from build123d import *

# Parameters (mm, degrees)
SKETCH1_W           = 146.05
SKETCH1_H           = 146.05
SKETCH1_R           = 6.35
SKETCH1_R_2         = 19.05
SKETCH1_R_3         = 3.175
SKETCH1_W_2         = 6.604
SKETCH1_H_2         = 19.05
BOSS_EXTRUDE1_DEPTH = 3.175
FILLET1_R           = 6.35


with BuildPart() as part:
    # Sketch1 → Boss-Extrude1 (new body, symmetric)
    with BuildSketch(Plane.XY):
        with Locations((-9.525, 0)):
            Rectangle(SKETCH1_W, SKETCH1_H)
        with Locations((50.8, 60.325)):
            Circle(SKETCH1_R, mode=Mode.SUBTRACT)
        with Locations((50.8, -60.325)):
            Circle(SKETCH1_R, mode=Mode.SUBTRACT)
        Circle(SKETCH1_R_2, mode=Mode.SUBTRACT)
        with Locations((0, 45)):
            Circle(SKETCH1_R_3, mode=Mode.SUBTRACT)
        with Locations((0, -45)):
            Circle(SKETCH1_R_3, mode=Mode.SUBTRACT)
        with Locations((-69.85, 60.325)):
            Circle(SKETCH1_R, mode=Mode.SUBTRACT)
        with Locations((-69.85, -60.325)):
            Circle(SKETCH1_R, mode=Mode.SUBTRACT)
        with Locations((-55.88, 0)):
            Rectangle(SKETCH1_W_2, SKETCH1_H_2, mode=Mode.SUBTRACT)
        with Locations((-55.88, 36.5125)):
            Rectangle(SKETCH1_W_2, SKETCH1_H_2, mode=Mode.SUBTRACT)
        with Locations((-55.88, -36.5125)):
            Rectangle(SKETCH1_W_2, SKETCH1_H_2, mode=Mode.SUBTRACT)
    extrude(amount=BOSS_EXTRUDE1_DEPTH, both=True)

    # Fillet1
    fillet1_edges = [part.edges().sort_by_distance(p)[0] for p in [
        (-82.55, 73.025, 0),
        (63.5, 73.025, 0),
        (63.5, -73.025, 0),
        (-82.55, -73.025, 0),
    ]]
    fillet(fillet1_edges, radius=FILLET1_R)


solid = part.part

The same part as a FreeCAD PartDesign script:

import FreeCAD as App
import Part
import Sketcher

V = App.Vector
Q = App.Units.Quantity


def edges_at(feature, points):
    """Names of the edges that pass closest to the given points."""
    edges = feature.Shape.Edges
    near = lambda p: min(range(len(edges)), key=lambda i: edges[i].distToShape(Part.Vertex(*p))[0])
    return sorted({f"Edge{near(p) + 1}" for p in points})

doc = App.newDocument("Part")
params = doc.addObject("Spreadsheet::Sheet", "Params")
for row, (alias, value) in enumerate([
    ("sketch1_diameter", "0.5 in"),
    ("sketch1_diameter2", "1.5 in"),
    ("sketch1_diameter3", "0.25 in"),
    ("sketch1_width", "5.75 in"),
    ("sketch1_width2", "0.26 in"),
    ("pad1_length", "0.25 in"),
    ("fillet_radius", "0.25 in"),
], start=1):
    params.set(f"A{row}", alias)
    params.set(f"B{row}", "=" + value)
    params.setAlias(f"B{row}", alias)

body = doc.addObject("PartDesign::Body", "Body")

# Sketch on XY plane
sketch1 = body.newObject("Sketcher::SketchObject", "Sketch")
sketch1.AttachmentSupport = (doc.getObject("XY_Plane"), [""])
sketch1.MapMode = "FlatFace"
sketch1.addGeometry(Part.LineSegment(V(-82.5, 73, 0), V(-82.5, -73, 0)), False)
sketch1.addGeometry(Part.LineSegment(V(-82.5, -73, 0), V(63.5, -73, 0)), False)
sketch1.addGeometry(Part.LineSegment(V(63.5, -73, 0), V(63.5, 73, 0)), False)
sketch1.addGeometry(Part.LineSegment(V(63.5, 73, 0), V(-82.5, 73, 0)), False)
sketch1.addGeometry(Part.Circle(V(-69.8, -60.3, 0), V(0, 0, 1), 6.3), False)
sketch1.addGeometry(Part.LineSegment(V(-52.6, -46, 0), V(-59.2, -46, 0)), False)
sketch1.addGeometry(Part.LineSegment(V(-59.2, -46, 0), V(-59.2, -27, 0)), False)
sketch1.addGeometry(Part.LineSegment(V(-59.2, -27, 0), V(-52.6, -27, 0)), False)
sketch1.addGeometry(Part.LineSegment(V(-52.6, -27, 0), V(-52.6, -46, 0)), False)
sketch1.addGeometry(Part.Circle(V(0, -45, 0), V(0, 0, 1), 3.2), False)
sketch1.addGeometry(Part.Circle(V(50.8, -60.3, 0), V(0, 0, 1), 6.3), False)
sketch1.addGeometry(Part.LineSegment(V(-52.6, -9.5, 0), V(-59.2, -9.5, 0)), False)
sketch1.addGeometry(Part.LineSegment(V(-59.2, -9.5, 0), V(-59.2, 9.5, 0)), False)
sketch1.addGeometry(Part.LineSegment(V(-59.2, 9.5, 0), V(-52.6, 9.5, 0)), False)
sketch1.addGeometry(Part.LineSegment(V(-52.6, 9.5, 0), V(-52.6, -9.5, 0)), False)
sketch1.addGeometry(Part.LineSegment(V(-52.6, 27, 0), V(-59.2, 27, 0)), False)
sketch1.addGeometry(Part.LineSegment(V(-59.2, 27, 0), V(-59.2, 46, 0)), False)
sketch1.addGeometry(Part.LineSegment(V(-59.2, 46, 0), V(-52.6, 46, 0)), False)
sketch1.addGeometry(Part.LineSegment(V(-52.6, 46, 0), V(-52.6, 27, 0)), False)
sketch1.addGeometry(Part.Circle(V(-69.8, 60.3, 0), V(0, 0, 1), 6.3), False)
sketch1.addGeometry(Part.Circle(V(0, 0, 0), V(0, 0, 1), 19.1), False)
sketch1.addGeometry(Part.Circle(V(0, 45, 0), V(0, 0, 1), 3.2), False)
sketch1.addGeometry(Part.Circle(V(50.8, 60.3, 0), V(0, 0, 1), 6.3), False)
sketch1.addConstraint(Sketcher.Constraint("Coincident", 0, 2, 1, 1))
sketch1.addConstraint(Sketcher.Constraint("Coincident", 1, 2, 2, 1))
sketch1.addConstraint(Sketcher.Constraint("Coincident", 2, 2, 3, 1))
sketch1.addConstraint(Sketcher.Constraint("Coincident", 3, 2, 0, 1))
sketch1.addConstraint(Sketcher.Constraint("Coincident", 5, 2, 6, 1))
sketch1.addConstraint(Sketcher.Constraint("Coincident", 6, 2, 7, 1))
sketch1.addConstraint(Sketcher.Constraint("Coincident", 7, 2, 8, 1))
sketch1.addConstraint(Sketcher.Constraint("Coincident", 8, 2, 5, 1))
sketch1.addConstraint(Sketcher.Constraint("Coincident", 11, 2, 12, 1))
sketch1.addConstraint(Sketcher.Constraint("Coincident", 12, 2, 13, 1))
sketch1.addConstraint(Sketcher.Constraint("Coincident", 13, 2, 14, 1))
sketch1.addConstraint(Sketcher.Constraint("Coincident", 14, 2, 11, 1))
sketch1.addConstraint(Sketcher.Constraint("Coincident", 15, 2, 16, 1))
sketch1.addConstraint(Sketcher.Constraint("Coincident", 16, 2, 17, 1))
sketch1.addConstraint(Sketcher.Constraint("Coincident", 17, 2, 18, 1))
sketch1.addConstraint(Sketcher.Constraint("Coincident", 18, 2, 15, 1))
sketch1.addConstraint(Sketcher.Constraint("Vertical", 0))
sketch1.addConstraint(Sketcher.Constraint("Horizontal", 1))
sketch1.addConstraint(Sketcher.Constraint("Vertical", 2))
sketch1.addConstraint(Sketcher.Constraint("Horizontal", 3))
sketch1.addConstraint(Sketcher.Constraint("Horizontal", 5))
sketch1.addConstraint(Sketcher.Constraint("Vertical", 6))
sketch1.addConstraint(Sketcher.Constraint("Horizontal", 7))
sketch1.addConstraint(Sketcher.Constraint("Vertical", 8))
sketch1.addConstraint(Sketcher.Constraint("Horizontal", 11))
sketch1.addConstraint(Sketcher.Constraint("Vertical", 12))
sketch1.addConstraint(Sketcher.Constraint("Horizontal", 13))
sketch1.addConstraint(Sketcher.Constraint("Vertical", 14))
sketch1.addConstraint(Sketcher.Constraint("Horizontal", 15))
sketch1.addConstraint(Sketcher.Constraint("Vertical", 16))
sketch1.addConstraint(Sketcher.Constraint("Horizontal", 17))
sketch1.addConstraint(Sketcher.Constraint("Vertical", 18))
sketch1.addConstraint(Sketcher.Constraint("Coincident", 20, 3, -1, 1))
sketch1.addConstraint(Sketcher.Constraint("Equal", 4, 10))
sketch1.addConstraint(Sketcher.Constraint("Equal", 10, 19))
sketch1.addConstraint(Sketcher.Constraint("Equal", 9, 21))
sketch1.addConstraint(Sketcher.Constraint("Equal", 19, 22))
sketch1.addConstraint(Sketcher.Constraint("Symmetric", 9, 3, 21, 3, -1, 1))
sketch1.addConstraint(Sketcher.Constraint("Symmetric", 4, 3, 19, 3, -1))
sketch1.addConstraint(Sketcher.Constraint("Symmetric", 10, 3, 22, 3, -1))
sketch1.addConstraint(Sketcher.Constraint("Symmetric", 6, 2, 15, 2, -1))
sketch1.addConstraint(Sketcher.Constraint("Symmetric", 8, 2, 17, 2, -1))
sketch1.addConstraint(Sketcher.Constraint("PointOnObject", 9, 3, -2))
sketch1.addConstraint(Sketcher.Constraint("Horizontal", 4, 3, 10, 3))
sketch1.addConstraint(Sketcher.Constraint("Vertical", 6, 2, 11, 2))
sketch1.addConstraint(Sketcher.Constraint("Vertical", 8, 2, 13, 2))
sketch1.addConstraint(Sketcher.Constraint("Equal", 3, 0))
sketch1.addConstraint(Sketcher.Constraint("Equal", 8, 12))
sketch1.addConstraint(Sketcher.Constraint("Diameter", 4, Q("0.5 in")))
sketch1.addConstraint(Sketcher.Constraint("Diameter", 20, Q("1.5 in")))
sketch1.addConstraint(Sketcher.Constraint("Diameter", 9, Q("0.25 in")))
sketch1.addConstraint(Sketcher.Constraint("DistanceX", -1, 1, 10, 3, Q("2 in")))
sketch1.addConstraint(Sketcher.Constraint("DistanceY", 4, 3, 11, 2, Q("2 in")))
sketch1.addConstraint(Sketcher.Constraint("DistanceY", 12, 2, 19, 3, Q("2 in")))
sketch1.addConstraint(Sketcher.Constraint("DistanceX", 1, 1, 1, 2, Q("5.75 in")))
sketch1.addConstraint(Sketcher.Constraint("DistanceX", 5, 2, 5, 1, Q("0.26 in")))
sketch1.addConstraint(Sketcher.Constraint("DistanceY", 6, 1, 6, 2, Q("0.75 in")))
sketch1.addConstraint(Sketcher.Constraint("DistanceX", -1, 1, 1, 2, Q("2.5 in")))
sketch1.addConstraint(Sketcher.Constraint("DistanceX", 0, 2, 4, 3, Q("0.5 in")))
sketch1.addConstraint(Sketcher.Constraint("DistanceY", 0, 2, 4, 3, Q("0.5 in")))
sketch1.addConstraint(Sketcher.Constraint("DistanceX", 5, 2, -1, 1, Q("2.33 in")))
sketch1.addConstraint(Sketcher.Constraint("DistanceY", 5, 2, -1, 1, Q("1.8125 in")))
sketch1.addConstraint(Sketcher.Constraint("DistanceY", 9, 3, -1, 1, 45.0))
sketch1.setExpression("Constraints[48]", "Params.sketch1_diameter")
sketch1.setExpression("Constraints[49]", "Params.sketch1_diameter2")
sketch1.setExpression("Constraints[50]", "Params.sketch1_diameter3")
sketch1.setExpression("Constraints[54]", "Params.sketch1_width")
sketch1.setExpression("Constraints[55]", "Params.sketch1_width2")
pad1 = body.newObject("PartDesign::Pad", "Pad")
pad1.Profile = sketch1
pad1.setExpression("Length", "Params.pad1_length")
pad1.Midplane = True
doc.recompute()

fillet = body.newObject("PartDesign::Fillet", "Fillet")
fillet.Base = (pad1, edges_at(pad1, [
    (-82.55, 73.025, 0),
    (63.5, 73.025, 0),
    (63.5, -73.025, 0),
    (-82.55, -73.025, 0),
]))
fillet.setExpression("Radius", "Params.fillet_radius")

doc.recompute()
